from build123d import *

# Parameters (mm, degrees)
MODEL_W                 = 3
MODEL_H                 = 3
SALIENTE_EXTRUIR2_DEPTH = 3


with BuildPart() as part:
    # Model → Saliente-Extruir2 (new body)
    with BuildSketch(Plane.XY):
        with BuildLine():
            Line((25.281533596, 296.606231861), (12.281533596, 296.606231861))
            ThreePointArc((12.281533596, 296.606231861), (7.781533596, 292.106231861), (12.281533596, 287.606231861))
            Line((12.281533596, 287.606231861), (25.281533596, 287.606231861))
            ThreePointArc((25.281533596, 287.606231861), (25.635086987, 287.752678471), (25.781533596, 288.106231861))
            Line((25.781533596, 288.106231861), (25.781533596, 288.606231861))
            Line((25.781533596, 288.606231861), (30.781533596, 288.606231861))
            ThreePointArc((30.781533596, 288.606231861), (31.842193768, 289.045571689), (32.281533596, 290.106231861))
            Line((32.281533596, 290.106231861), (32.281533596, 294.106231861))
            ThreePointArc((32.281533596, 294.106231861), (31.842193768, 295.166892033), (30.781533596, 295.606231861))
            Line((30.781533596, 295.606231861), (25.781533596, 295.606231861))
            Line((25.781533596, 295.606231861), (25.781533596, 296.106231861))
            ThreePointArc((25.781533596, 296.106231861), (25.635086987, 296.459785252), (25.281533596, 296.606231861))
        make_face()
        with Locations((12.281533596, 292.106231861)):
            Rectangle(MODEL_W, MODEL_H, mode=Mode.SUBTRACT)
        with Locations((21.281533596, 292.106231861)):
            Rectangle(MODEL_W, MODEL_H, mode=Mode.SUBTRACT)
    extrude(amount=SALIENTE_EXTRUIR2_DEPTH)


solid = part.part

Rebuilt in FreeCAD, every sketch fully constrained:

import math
import FreeCAD as App
import Part
import Sketcher
Q = App.Units.Quantity

doc = App.newDocument("Part")
params = doc.addObject("Spreadsheet::Sheet", "Params")
for row, (alias, value) in enumerate([
    ("sketch1_radius", "4.5 mm"),
    ("sketch1_radius2", "0.5 mm"),
    ("sketch1_radius3", "1.5 mm"),
    ("sketch1_width", "13 mm"),
    ("sketch1_width2", "5 mm"),
    ("pad1_length", "3 mm"),
], start=1):
    params.set(f"A{row}", alias)
    params.set(f"B{row}", "=" + value)
    params.setAlias(f"B{row}", alias)

body = doc.addObject("PartDesign::Body", "Body")

sketch1 = body.newObject("Sketcher::SketchObject", "Sketch")
sketch1.AttachmentSupport = (doc.getObject("XY_Plane"), [""])
sketch1.MapMode = "FlatFace"
sketch1.addGeometry([
    Part.LineSegment(App.Vector(25.28, 296.61, 0), App.Vector(12.28, 296.61, 0)),
    Part.ArcOfCircle(Part.Circle(App.Vector(12.28, 292.11, 0), App.Vector(0, 0, 1), 4.5), math.radians(90), math.radians(270)),
    Part.LineSegment(App.Vector(12.28, 287.61, 0), App.Vector(25.28, 287.61, 0)),
    Part.ArcOfCircle(Part.Circle(App.Vector(25.28, 288.11, 0), App.Vector(0, 0, 1), 0.5), math.radians(-90), math.radians(0)),
    Part.LineSegment(App.Vector(25.78, 288.11, 0), App.Vector(25.78, 288.61, 0)),
    Part.LineSegment(App.Vector(25.78, 288.61, 0), App.Vector(30.78, 288.61, 0)),
    Part.ArcOfCircle(Part.Circle(App.Vector(30.78, 290.11, 0), App.Vector(0, 0, 1), 1.5), math.radians(-90), math.radians(0)),
    Part.LineSegment(App.Vector(32.28, 290.11, 0), App.Vector(32.28, 294.11, 0)),
    Part.ArcOfCircle(Part.Circle(App.Vector(30.78, 294.11, 0), App.Vector(0, 0, 1), 1.5), math.radians(0), math.radians(90)),
    Part.LineSegment(App.Vector(30.78, 295.61, 0), App.Vector(25.78, 295.61, 0)),
    Part.LineSegment(App.Vector(25.78, 295.61, 0), App.Vector(25.78, 296.11, 0)),
    Part.ArcOfCircle(Part.Circle(App.Vector(25.28, 296.11, 0), App.Vector(0, 0, 1), 0.5), math.radians(0), math.radians(90)),
    Part.LineSegment(App.Vector(13.78, 290.61, 0), App.Vector(10.78, 290.61, 0)),
    Part.LineSegment(App.Vector(10.78, 290.61, 0), App.Vector(10.78, 293.61, 0)),
    Part.LineSegment(App.Vector(10.78, 293.61, 0), App.Vector(13.78, 293.61, 0)),
    Part.LineSegment(App.Vector(13.78, 293.61, 0), App.Vector(13.78, 290.61, 0)),
    Part.LineSegment(App.Vector(22.78, 290.61, 0), App.Vector(19.78, 290.61, 0)),
    Part.LineSegment(App.Vector(19.78, 290.61, 0), App.Vector(19.78, 293.61, 0)),
    Part.LineSegment(App.Vector(19.78, 293.61, 0), App.Vector(22.78, 293.61, 0)),
    Part.LineSegment(App.Vector(22.78, 293.61, 0), App.Vector(22.78, 290.61, 0)),
], False)
sketch1.addConstraint([
    Sketcher.Constraint("Tangent", 0, 2, 1, 1),
    Sketcher.Constraint("Tangent", 1, 2, 2, 1),
    Sketcher.Constraint("Tangent", 2, 2, 3, 1),
    Sketcher.Constraint("Tangent", 3, 2, 4, 1),
    Sketcher.Constraint("Coincident", 4, 2, 5, 1),
    Sketcher.Constraint("Tangent", 5, 2, 6, 1),
    Sketcher.Constraint("Tangent", 6, 2, 7, 1),
    Sketcher.Constraint("Tangent", 7, 2, 8, 1),
    Sketcher.Constraint("Tangent", 8, 2, 9, 1),
    Sketcher.Constraint("Coincident", 9, 2, 10, 1),
    Sketcher.Constraint("Tangent", 10, 2, 11, 1),
    Sketcher.Constraint("Tangent", 11, 2, 0, 1),
    Sketcher.Constraint("Coincident", 12, 2, 13, 1),
    Sketcher.Constraint("Coincident", 13, 2, 14, 1),
    Sketcher.Constraint("Coincident", 14, 2, 15, 1),
    Sketcher.Constraint("Coincident", 15, 2, 12, 1),
    Sketcher.Constraint("Coincident", 16, 2, 17, 1),
    Sketcher.Constraint("Coincident", 17, 2, 18, 1),
    Sketcher.Constraint("Coincident", 18, 2, 19, 1),
    Sketcher.Constraint("Coincident", 19, 2, 16, 1),
    Sketcher.Constraint("Horizontal", 0),
    Sketcher.Constraint("Horizontal", 2),
    Sketcher.Constraint("Vertical", 4),
    Sketcher.Constraint("Horizontal", 5),
    Sketcher.Constraint("Vertical", 7),
    Sketcher.Constraint("Horizontal", 9),
    Sketcher.Constraint("Vertical", 10),
    Sketcher.Constraint("Horizontal", 12),
    Sketcher.Constraint("Vertical", 13),
    Sketcher.Constraint("Horizontal", 14),
    Sketcher.Constraint("Vertical", 15),
    Sketcher.Constraint("Horizontal", 16),
    Sketcher.Constraint("Vertical", 17),
    Sketcher.Constraint("Horizontal", 18),
    Sketcher.Constraint("Vertical", 19),
    Sketcher.Constraint("Equal", 6, 8),
    Sketcher.Constraint("Equal", 3, 11),
    Sketcher.Constraint("Horizontal", 15, 2, 16, 2),
    Sketcher.Constraint("Horizontal", 14, 2, 17, 2),
    Sketcher.Constraint("Vertical", 3, 3, 11, 3),
    Sketcher.Constraint("Equal", 14, 16),
    Sketcher.Constraint("Equal", 4, 10),
    Sketcher.Constraint("Equal", 18, 13),
    Sketcher.Constraint("Radius", 1, Q("4.5 mm")),
    Sketcher.Constraint("Radius", 3, Q("0.5 mm")),
    Sketcher.Constraint("Radius", 6, Q("1.5 mm")),
    Sketcher.Constraint("DistanceX", 0, 2, 0, 1, Q("13 mm")),
    Sketcher.Constraint("DistanceX", 5, 1, 5, 2, Q("5 mm")),
    Sketcher.Constraint("DistanceX", 12, 2, 12, 1, Q("3 mm")),
    Sketcher.Constraint("DistanceY", 7, 1, 7, 2, Q("4 mm")),
    Sketcher.Constraint("DistanceY", 1, 2, 12, 2, Q("3 mm")),
    Sketcher.Constraint("DistanceX", 15, 2, 16, 2, Q("6 mm")),
    Sketcher.Constraint("DistanceX", 16, 2, 4, 2, Q("6 mm")),
    Sketcher.Constraint("DistanceY", -1, 1, 1, 3, Q("292.106232 mm")),
    Sketcher.Constraint("DistanceX", -1, 1, 1, 3, Q("12.281534 mm")),
])
sketch1.setExpression("Constraints[43]", "Params.sketch1_radius")
sketch1.setExpression("Constraints[44]", "Params.sketch1_radius2")
sketch1.setExpression("Constraints[45]", "Params.sketch1_radius3")
sketch1.setExpression("Constraints[46]", "Params.sketch1_width")
sketch1.setExpression("Constraints[47]", "Params.sketch1_width2")
pad1 = body.newObject("PartDesign::Pad", "Pad")
pad1.Profile = sketch1
pad1.setExpression("Length", "Params.pad1_length")

doc.recompute()
